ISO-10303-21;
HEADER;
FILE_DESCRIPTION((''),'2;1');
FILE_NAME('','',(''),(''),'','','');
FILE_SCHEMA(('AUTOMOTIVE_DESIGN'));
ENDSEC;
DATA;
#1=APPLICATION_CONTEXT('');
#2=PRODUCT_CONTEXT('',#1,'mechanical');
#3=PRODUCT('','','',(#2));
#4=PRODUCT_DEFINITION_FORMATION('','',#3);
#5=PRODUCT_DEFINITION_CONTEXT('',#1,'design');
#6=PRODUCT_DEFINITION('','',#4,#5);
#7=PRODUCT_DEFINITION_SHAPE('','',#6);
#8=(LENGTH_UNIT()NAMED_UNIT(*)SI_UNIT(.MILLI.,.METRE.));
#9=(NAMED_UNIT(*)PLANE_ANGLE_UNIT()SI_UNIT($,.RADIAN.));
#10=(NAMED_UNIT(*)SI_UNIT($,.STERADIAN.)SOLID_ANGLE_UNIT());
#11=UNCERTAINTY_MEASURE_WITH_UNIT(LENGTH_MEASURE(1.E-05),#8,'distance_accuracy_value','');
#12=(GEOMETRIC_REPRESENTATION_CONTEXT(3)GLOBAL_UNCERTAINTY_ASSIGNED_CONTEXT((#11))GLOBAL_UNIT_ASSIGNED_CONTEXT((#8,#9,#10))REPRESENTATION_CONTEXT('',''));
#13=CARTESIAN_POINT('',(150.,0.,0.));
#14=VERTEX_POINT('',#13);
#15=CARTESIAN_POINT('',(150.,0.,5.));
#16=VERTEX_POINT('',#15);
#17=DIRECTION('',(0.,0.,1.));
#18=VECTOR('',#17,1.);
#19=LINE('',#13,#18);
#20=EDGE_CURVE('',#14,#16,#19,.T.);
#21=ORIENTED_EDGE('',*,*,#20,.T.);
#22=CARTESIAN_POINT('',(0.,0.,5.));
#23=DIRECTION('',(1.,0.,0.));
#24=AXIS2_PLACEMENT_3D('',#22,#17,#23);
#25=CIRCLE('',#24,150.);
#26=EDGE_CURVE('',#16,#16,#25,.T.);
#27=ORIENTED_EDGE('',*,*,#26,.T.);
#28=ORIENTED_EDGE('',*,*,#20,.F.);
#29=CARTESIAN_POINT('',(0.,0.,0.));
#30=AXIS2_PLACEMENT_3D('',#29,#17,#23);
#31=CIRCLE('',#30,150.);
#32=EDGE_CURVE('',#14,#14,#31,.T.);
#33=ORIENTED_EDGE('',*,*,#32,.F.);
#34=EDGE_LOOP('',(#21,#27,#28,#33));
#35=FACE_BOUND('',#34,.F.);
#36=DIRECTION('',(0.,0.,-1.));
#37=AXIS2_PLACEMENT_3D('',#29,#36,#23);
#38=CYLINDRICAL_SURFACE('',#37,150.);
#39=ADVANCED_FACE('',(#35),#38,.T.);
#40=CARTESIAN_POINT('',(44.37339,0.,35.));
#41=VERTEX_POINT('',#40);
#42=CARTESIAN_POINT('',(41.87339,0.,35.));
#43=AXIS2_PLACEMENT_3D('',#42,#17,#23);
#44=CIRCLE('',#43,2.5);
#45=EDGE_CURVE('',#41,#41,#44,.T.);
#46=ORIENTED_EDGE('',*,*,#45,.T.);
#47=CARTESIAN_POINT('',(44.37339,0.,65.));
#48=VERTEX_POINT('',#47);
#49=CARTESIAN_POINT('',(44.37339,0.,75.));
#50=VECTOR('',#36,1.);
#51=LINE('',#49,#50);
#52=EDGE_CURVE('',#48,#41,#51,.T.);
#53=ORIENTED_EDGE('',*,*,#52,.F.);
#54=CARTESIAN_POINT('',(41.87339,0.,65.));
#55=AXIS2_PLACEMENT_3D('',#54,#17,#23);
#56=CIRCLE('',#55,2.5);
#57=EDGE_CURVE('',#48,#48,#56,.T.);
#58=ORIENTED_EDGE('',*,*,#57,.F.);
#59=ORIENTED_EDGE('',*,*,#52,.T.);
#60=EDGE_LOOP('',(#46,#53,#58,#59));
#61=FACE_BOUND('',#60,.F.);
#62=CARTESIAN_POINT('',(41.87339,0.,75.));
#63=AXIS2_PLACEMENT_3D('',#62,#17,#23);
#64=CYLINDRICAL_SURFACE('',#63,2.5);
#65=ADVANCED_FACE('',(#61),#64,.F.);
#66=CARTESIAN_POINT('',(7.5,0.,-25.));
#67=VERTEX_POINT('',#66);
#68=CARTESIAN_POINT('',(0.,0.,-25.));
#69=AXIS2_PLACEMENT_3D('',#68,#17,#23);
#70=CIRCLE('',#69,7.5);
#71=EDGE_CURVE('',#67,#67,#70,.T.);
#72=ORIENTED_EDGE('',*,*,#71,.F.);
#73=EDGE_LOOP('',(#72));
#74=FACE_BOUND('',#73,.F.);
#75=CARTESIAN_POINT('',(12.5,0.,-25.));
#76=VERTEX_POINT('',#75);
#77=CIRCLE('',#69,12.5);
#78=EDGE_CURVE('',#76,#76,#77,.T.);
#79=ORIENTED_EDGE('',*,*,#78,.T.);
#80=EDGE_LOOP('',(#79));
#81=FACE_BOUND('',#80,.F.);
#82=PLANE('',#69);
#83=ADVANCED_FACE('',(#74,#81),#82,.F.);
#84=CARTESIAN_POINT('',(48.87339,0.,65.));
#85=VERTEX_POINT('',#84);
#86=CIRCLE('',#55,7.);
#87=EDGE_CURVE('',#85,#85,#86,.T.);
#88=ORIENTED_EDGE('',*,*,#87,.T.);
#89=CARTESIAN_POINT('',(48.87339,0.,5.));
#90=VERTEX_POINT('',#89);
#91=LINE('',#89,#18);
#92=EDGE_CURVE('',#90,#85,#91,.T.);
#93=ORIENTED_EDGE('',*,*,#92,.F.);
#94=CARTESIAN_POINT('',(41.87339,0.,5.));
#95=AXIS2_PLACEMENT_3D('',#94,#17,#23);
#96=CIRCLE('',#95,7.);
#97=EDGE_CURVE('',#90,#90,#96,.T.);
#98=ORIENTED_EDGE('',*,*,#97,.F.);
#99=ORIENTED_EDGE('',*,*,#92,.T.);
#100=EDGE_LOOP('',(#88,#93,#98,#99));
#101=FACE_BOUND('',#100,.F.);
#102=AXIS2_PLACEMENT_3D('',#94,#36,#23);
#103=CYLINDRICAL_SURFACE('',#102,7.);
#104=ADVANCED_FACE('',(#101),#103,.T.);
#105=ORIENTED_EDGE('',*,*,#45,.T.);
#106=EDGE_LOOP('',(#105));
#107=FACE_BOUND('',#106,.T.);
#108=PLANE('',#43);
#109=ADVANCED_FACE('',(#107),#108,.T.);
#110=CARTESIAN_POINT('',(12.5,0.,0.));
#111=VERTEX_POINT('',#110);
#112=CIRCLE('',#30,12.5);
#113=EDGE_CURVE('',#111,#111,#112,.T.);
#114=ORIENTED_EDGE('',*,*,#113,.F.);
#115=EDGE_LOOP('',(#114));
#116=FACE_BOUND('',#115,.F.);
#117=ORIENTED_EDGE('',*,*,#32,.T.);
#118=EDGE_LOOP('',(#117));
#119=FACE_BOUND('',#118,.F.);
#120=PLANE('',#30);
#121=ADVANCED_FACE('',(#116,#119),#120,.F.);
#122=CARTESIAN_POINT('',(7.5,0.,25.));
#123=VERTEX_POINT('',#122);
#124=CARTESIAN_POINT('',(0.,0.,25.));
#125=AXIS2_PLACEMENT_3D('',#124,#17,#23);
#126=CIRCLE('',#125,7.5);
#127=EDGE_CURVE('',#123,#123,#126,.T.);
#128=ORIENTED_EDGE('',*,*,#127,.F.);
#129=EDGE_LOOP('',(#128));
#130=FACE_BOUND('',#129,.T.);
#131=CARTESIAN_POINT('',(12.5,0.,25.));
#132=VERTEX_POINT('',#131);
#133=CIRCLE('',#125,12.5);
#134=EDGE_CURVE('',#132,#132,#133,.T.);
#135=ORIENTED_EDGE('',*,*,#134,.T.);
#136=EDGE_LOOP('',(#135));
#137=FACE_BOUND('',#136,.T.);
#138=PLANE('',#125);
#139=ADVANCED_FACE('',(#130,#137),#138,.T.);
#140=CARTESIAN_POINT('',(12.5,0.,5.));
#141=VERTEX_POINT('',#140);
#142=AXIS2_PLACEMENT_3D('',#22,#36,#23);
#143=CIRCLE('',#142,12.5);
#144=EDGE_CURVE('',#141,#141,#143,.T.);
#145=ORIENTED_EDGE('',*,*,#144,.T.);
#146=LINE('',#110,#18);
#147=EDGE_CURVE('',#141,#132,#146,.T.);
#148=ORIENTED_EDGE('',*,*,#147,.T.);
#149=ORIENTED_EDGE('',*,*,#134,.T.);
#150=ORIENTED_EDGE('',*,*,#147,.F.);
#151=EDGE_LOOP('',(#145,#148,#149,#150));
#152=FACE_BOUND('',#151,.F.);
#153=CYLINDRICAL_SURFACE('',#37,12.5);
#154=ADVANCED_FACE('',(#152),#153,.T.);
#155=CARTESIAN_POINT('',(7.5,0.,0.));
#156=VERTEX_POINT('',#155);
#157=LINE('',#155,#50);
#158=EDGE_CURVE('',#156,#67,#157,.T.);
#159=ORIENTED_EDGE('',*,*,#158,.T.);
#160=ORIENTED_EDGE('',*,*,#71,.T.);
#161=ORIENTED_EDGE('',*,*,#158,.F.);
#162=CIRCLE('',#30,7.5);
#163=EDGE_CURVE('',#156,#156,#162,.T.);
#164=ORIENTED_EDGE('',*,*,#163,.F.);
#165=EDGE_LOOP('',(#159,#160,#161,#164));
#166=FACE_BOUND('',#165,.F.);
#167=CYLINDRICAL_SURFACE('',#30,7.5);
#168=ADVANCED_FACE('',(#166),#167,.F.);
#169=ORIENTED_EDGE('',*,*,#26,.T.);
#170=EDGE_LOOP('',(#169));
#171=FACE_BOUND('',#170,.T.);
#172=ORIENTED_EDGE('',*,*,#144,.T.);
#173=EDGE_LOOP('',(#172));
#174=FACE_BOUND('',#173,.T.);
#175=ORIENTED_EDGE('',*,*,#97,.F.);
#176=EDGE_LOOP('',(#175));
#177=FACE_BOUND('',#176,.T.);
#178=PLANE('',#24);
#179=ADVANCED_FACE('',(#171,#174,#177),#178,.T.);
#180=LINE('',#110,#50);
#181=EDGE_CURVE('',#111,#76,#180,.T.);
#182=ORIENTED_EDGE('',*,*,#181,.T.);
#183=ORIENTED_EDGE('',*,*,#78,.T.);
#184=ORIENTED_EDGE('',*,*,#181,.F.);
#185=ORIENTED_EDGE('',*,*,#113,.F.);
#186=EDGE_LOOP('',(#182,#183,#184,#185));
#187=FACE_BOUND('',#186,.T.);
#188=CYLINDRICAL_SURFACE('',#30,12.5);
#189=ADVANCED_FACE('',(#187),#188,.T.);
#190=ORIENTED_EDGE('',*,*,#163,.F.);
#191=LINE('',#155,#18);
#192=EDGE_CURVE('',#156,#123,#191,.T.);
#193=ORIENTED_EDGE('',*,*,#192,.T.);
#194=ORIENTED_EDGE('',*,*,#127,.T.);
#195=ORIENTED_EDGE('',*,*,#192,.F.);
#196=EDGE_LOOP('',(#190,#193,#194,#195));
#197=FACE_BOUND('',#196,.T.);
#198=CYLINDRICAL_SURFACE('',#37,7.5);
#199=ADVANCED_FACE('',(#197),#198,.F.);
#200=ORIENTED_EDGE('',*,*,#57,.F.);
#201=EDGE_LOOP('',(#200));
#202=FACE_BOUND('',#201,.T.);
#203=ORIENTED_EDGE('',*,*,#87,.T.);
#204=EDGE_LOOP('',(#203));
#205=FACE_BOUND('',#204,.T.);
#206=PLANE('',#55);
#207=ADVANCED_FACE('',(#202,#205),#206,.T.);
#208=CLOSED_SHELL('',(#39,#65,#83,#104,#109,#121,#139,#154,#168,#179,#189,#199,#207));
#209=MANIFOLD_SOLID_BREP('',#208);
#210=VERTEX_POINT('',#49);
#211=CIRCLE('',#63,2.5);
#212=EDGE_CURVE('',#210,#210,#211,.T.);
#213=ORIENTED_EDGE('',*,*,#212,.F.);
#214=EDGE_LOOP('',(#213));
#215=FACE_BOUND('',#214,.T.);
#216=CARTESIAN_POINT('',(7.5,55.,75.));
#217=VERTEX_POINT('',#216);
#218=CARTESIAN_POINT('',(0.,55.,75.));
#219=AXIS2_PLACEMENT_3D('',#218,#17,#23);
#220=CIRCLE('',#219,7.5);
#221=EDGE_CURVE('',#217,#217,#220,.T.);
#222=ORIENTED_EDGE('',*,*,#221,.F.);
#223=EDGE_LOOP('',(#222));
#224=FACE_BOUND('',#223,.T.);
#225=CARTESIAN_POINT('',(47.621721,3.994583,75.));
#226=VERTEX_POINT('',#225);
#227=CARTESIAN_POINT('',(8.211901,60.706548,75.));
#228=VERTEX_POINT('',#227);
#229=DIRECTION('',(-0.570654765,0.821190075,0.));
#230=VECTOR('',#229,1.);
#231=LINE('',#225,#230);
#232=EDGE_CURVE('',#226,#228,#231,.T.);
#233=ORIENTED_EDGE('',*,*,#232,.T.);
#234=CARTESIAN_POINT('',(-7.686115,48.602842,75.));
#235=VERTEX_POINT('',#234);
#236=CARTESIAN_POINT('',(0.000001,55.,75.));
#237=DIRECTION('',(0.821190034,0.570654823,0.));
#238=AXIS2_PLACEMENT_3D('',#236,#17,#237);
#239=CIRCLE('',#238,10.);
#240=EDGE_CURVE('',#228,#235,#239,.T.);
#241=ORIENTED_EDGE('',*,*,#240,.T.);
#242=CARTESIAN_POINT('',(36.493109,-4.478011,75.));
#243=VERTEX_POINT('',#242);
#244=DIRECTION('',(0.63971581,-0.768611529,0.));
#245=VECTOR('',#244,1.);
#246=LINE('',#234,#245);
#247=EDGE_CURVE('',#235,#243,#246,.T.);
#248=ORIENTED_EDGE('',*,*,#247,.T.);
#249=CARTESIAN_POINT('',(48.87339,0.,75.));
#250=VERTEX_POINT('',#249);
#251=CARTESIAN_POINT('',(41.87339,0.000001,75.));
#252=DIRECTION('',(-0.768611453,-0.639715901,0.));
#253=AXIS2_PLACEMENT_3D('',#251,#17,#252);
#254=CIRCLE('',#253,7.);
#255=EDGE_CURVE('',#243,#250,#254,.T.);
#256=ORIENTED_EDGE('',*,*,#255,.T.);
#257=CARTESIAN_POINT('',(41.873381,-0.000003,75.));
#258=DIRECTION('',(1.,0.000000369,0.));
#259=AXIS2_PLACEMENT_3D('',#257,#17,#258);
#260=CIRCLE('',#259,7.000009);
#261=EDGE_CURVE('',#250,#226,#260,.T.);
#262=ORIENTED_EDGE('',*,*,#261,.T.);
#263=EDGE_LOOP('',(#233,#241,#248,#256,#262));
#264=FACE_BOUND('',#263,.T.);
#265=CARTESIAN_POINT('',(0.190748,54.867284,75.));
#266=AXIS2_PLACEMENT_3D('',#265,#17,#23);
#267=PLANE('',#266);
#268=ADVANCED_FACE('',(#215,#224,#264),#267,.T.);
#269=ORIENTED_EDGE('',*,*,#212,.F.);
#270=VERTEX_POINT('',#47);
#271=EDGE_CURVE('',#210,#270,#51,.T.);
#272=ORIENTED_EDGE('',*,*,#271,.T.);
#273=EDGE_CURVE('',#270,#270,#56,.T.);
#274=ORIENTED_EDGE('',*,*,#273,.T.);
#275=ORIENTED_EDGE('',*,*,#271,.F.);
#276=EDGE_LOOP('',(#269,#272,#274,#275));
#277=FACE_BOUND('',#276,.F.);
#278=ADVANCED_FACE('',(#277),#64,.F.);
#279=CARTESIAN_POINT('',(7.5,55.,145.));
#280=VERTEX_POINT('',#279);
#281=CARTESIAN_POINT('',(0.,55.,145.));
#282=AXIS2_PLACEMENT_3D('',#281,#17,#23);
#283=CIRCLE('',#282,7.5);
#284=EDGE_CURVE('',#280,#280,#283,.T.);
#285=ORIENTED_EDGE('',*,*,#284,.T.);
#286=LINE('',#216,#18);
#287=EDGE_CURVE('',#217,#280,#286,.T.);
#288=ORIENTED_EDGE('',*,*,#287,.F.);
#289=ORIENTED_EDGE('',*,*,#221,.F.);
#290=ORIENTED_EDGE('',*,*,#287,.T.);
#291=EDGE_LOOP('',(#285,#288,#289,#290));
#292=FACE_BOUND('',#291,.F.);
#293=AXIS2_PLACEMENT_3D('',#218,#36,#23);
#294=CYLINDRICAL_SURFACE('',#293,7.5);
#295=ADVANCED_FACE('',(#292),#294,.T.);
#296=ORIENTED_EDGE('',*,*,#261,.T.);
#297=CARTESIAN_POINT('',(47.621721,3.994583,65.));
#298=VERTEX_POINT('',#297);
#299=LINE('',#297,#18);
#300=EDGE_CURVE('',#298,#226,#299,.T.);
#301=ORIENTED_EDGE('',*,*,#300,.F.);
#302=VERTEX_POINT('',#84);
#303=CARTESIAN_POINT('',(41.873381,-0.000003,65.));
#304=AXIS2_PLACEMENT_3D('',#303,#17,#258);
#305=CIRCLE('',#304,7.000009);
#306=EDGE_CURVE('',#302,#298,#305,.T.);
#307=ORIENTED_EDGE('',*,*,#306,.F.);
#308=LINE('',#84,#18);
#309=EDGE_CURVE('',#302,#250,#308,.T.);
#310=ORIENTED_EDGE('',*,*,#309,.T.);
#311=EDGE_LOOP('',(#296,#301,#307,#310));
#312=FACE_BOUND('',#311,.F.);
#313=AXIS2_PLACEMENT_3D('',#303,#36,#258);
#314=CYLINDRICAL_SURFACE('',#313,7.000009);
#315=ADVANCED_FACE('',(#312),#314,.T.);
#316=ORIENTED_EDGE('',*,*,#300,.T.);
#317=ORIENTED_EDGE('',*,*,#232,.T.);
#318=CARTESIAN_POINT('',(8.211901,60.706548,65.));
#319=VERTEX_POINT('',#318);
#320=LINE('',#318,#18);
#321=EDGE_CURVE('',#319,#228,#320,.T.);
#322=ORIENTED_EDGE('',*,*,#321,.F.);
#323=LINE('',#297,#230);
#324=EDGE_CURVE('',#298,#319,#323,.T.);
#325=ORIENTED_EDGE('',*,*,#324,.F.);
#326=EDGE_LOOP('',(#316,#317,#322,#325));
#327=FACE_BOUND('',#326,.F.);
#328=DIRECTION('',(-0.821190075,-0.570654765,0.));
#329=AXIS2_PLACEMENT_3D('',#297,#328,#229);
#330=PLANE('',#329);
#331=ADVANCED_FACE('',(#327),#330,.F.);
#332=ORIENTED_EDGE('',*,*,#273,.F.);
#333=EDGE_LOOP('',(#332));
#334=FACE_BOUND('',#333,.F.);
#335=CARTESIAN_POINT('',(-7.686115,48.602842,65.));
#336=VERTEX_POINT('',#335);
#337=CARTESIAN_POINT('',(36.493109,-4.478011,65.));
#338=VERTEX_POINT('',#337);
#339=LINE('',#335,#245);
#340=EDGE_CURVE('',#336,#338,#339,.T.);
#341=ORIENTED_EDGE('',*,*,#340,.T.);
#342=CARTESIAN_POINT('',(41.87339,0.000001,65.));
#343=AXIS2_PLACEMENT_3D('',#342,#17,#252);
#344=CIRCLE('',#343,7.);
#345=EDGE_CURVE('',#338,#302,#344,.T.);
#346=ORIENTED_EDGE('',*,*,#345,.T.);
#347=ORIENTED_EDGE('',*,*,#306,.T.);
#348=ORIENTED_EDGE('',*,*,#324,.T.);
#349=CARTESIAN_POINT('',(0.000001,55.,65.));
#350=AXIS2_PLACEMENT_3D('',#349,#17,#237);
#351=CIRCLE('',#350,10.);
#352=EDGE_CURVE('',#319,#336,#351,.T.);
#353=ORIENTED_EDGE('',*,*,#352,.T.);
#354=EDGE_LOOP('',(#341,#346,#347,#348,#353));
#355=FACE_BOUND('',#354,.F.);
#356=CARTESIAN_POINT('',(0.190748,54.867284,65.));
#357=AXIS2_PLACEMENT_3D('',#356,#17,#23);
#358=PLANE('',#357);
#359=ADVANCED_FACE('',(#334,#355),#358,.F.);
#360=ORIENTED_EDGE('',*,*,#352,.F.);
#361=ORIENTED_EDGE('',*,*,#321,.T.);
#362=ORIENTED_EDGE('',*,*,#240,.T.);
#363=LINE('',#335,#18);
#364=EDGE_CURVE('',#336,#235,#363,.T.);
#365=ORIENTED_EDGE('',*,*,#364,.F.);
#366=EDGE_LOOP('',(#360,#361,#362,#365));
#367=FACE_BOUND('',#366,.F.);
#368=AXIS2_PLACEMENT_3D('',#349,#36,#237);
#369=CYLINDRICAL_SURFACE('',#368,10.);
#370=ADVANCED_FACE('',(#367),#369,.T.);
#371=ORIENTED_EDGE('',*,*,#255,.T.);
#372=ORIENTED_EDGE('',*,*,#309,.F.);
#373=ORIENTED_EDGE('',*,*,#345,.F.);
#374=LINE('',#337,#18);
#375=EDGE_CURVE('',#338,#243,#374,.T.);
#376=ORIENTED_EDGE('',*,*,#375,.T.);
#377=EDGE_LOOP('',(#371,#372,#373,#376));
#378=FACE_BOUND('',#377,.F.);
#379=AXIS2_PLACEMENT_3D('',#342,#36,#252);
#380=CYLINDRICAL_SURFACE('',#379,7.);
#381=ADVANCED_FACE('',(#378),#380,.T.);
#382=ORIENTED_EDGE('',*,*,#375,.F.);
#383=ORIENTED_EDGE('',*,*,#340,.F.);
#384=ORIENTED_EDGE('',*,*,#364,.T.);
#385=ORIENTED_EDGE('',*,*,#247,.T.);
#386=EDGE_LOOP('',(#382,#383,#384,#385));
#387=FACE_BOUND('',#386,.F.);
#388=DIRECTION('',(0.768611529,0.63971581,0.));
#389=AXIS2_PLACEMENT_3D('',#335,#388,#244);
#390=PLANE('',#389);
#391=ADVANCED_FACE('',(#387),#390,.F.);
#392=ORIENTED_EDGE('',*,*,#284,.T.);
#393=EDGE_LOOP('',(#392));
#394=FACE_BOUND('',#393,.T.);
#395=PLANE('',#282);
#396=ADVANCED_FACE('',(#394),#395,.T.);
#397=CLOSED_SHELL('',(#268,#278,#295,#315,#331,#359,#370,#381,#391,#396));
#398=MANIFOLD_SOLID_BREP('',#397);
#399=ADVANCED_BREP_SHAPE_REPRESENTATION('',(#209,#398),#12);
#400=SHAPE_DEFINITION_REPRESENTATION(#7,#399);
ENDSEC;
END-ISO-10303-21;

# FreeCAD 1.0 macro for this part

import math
import FreeCAD as App
import Part
import Sketcher

V = App.Vector
Q = App.Units.Quantity

doc = App.newDocument("Part")
params = doc.addObject("Spreadsheet::Sheet", "Params")
for row, (alias, value) in enumerate([
    ("sketch1_diameter", "300 mm"),
    ("pad1_length", "5 mm"),
    ("sketch2_diameter", "15 mm"),
    ("sketch3_diameter", "25 mm"),
    ("sketch3_diameter2", "15 mm"),
    ("pad2_length", "25 mm"),
    ("sketch4_diameter", "25 mm"),
    ("sketch4_diameter2", "15 mm"),
    ("pad3_length", "25 mm"),
    ("sketch5_diameter", "14 mm"),
    ("pad4_length", "60 mm"),
    ("sketch6_radius", "10 mm"),
    ("sketch6_radius2", "7 mm"),
    ("pad5_length", "10 mm"),
    ("sketch7_diameter", "15 mm"),
    ("pad6_length", "70 mm"),
    ("sketch8_diameter", "5 mm"),
    ("pad7_length", "40 mm"),
], start=1):
    params.set(f"A{row}", alias)
    params.set(f"B{row}", "=" + value)
    params.setAlias(f"B{row}", alias)

body = doc.addObject("PartDesign::Body", "Body")

sketch1 = body.newObject("Sketcher::SketchObject", "Sketch")
sketch1.AttachmentSupport = (doc.getObject("XY_Plane"), [""])
sketch1.MapMode = "FlatFace"
sketch1.addGeometry(Part.Circle(V(0, 0, 0), V(0, 0, 1), 150), False)
sketch1.addConstraint([
    Sketcher.Constraint("Coincident", 0, 3, -1, 1),
    Sketcher.Constraint("Diameter", 0, Q("300 mm")),
])
sketch1.setExpression("Constraints[1]", "Params.sketch1_diameter")
pad1 = body.newObject("PartDesign::Pad", "Pad")
pad1.Profile = sketch1
pad1.setExpression("Length", "Params.pad1_length")

sketch2 = body.newObject("Sketcher::SketchObject", "Sketch001")
sketch2.AttachmentSupport = (doc.getObject("XY_Plane"), [""])
sketch2.MapMode = "FlatFace"
sketch2.addGeometry(Part.Circle(V(0, 0, 0), V(0, 0, 1), 8), False)
sketch2.addConstraint([
    Sketcher.Constraint("Coincident", 0, 3, -1, 1),
    Sketcher.Constraint("Diameter", 0, Q("15 mm")),
])
sketch2.setExpression("Constraints[1]", "Params.sketch2_diameter")
pocket1 = body.newObject("PartDesign::Pocket", "Pocket")
pocket1.Profile = sketch2
pocket1.Type = "ThroughAll"
pocket1.Reversed = True

sketch3 = body.newObject("Sketcher::SketchObject", "Sketch002")
sketch3.AttachmentSupport = (doc.getObject("XY_Plane"), [""])
sketch3.MapMode = "FlatFace"
sketch3.addGeometry([
    Part.Circle(V(0, 0, 0), V(0, 0, 1), 12),
    Part.Circle(V(0, 0, 0), V(0, 0, 1), 8),
], False)
sketch3.addConstraint([
    Sketcher.Constraint("Coincident", 0, 3, -1, 1),
    Sketcher.Constraint("Coincident", 1, 3, -1, 1),
    Sketcher.Constraint("Diameter", 0, Q("25 mm")),
    Sketcher.Constraint("Diameter", 1, Q("15 mm")),
])
sketch3.setExpression("Constraints[2]", "Params.sketch3_diameter")
sketch3.setExpression("Constraints[3]", "Params.sketch3_diameter2")
pad2 = body.newObject("PartDesign::Pad", "Pad001")
pad2.Profile = sketch3
pad2.setExpression("Length", "Params.pad2_length")

sketch4 = body.newObject("Sketcher::SketchObject", "Sketch003")
sketch4.AttachmentSupport = (doc.getObject("XY_Plane"), [""])
sketch4.MapMode = "FlatFace"
sketch4.addGeometry([
    Part.Circle(V(0, 0, 0), V(0, 0, 1), 12),
    Part.Circle(V(0, 0, 0), V(0, 0, 1), 8),
], False)
sketch4.addConstraint([
    Sketcher.Constraint("Coincident", 0, 3, -1, 1),
    Sketcher.Constraint("Coincident", 1, 3, -1, 1),
    Sketcher.Constraint("Diameter", 0, Q("25 mm")),
    Sketcher.Constraint("Diameter", 1, Q("15 mm")),
])
sketch4.setExpression("Constraints[2]", "Params.sketch4_diameter")
sketch4.setExpression("Constraints[3]", "Params.sketch4_diameter2")
pad3 = body.newObject("PartDesign::Pad", "Pad002")
pad3.Profile = sketch4
pad3.setExpression("Length", "Params.pad3_length")
pad3.Reversed = True

sketch5 = body.newObject("Sketcher::SketchObject", "Sketch004")
sketch5.AttachmentSupport = (doc.getObject("XY_Plane"), [""])
sketch5.MapMode = "FlatFace"
sketch5.AttachmentOffset = App.Placement(V(0, 0, 5), App.Rotation())
sketch5.addGeometry(Part.Circle(V(42, 0, 0), V(0, 0, 1), 7), False)
sketch5.addConstraint([
    Sketcher.Constraint("PointOnObject", 0, 3, -1),
    Sketcher.Constraint("Diameter", 0, Q("14 mm")),
    Sketcher.Constraint("DistanceX", -1, 1, 0, 3, Q("41.87339 mm")),
])
sketch5.setExpression("Constraints[1]", "Params.sketch5_diameter")
pad4 = body.newObject("PartDesign::Pad", "Pad003")
pad4.Profile = sketch5
pad4.setExpression("Length", "Params.pad4_length")
body2 = doc.addObject("PartDesign::Body", "Body001")

sketch6 = body2.newObject("Sketcher::SketchObject", "Sketch005")
sketch6.AttachmentSupport = (doc.getObject("XY_Plane001"), [""])
sketch6.MapMode = "FlatFace"
sketch6.AttachmentOffset = App.Placement(V(0, 0, 65), App.Rotation())
sketch6.addGeometry([
    Part.ArcOfCircle(Part.Circle(V(0, 55, 0), V(0, 0, 1), 10), math.radians(35), math.radians(220)),
    Part.LineSegment(V(-7.7, 48.6, 0), V(36.5, -4.5, 0)),
    Part.ArcOfCircle(Part.Circle(V(41.9, 0, 0), V(0, 0, 1), 7), math.radians(-140), math.radians(0)),
    Part.ArcOfCircle(Part.Circle(V(41.9, 0, 0), V(0, 0, 1), 7), math.radians(0), math.radians(35)),
    Part.LineSegment(V(47.6, 4, 0), V(8.2, 60.7, 0)),
], False)
sketch6.addConstraint([
    Sketcher.Constraint("Tangent", 0, 2, 1, 1),
    Sketcher.Constraint("Tangent", 1, 2, 2, 1),
    Sketcher.Constraint("Tangent", 2, 2, 3, 1),
    Sketcher.Constraint("Tangent", 3, 2, 4, 1),
    Sketcher.Constraint("Tangent", 4, 2, 0, 1),
    Sketcher.Constraint("PointOnObject", 0, 3, -2),
    Sketcher.Constraint("PointOnObject", 2, 3, -1),
    Sketcher.Constraint("PointOnObject", 2, 2, -1),
    Sketcher.Constraint("Equal", 1, 4),
    Sketcher.Constraint("Radius", 0, Q("10 mm")),
    Sketcher.Constraint("Radius", 2, Q("7 mm")),
    Sketcher.Constraint("DistanceY", -1, 1, 0, 3, Q("55 mm")),
    Sketcher.Constraint("DistanceX", -1, 1, 4, 2, Q("8.211901 mm")),
])
sketch6.setExpression("Constraints[9]", "Params.sketch6_radius")
sketch6.setExpression("Constraints[10]", "Params.sketch6_radius2")
pad5 = body2.newObject("PartDesign::Pad", "Pad004")
pad5.Profile = sketch6
pad5.setExpression("Length", "Params.pad5_length")

sketch7 = body2.newObject("Sketcher::SketchObject", "Sketch006")
sketch7.AttachmentSupport = (doc.getObject("XY_Plane001"), [""])
sketch7.MapMode = "FlatFace"
sketch7.AttachmentOffset = App.Placement(V(0, 0, 75), App.Rotation())
sketch7.addGeometry(Part.Circle(V(0, 55, 0), V(0, 0, 1), 8), False)
sketch7.addConstraint([
    Sketcher.Constraint("PointOnObject", 0, 3, -2),
    Sketcher.Constraint("Diameter", 0, Q("15 mm")),
    Sketcher.Constraint("DistanceY", -1, 1, 0, 3, Q("55 mm")),
])
sketch7.setExpression("Constraints[1]", "Params.sketch7_diameter")
pad6 = body2.newObject("PartDesign::Pad", "Pad005")
pad6.Profile = sketch7
pad6.setExpression("Length", "Params.pad6_length")
body3 = doc.addObject("PartDesign::Body", "Body002")

sketch8 = body3.newObject("Sketcher::SketchObject", "Sketch007")
sketch8.AttachmentSupport = (doc.getObject("XY_Plane002"), [""])
sketch8.MapMode = "FlatFace"
sketch8.AttachmentOffset = App.Placement(V(0, 0, 75), App.Rotation())
sketch8.addGeometry(Part.Circle(V(41.9, 0, 0), V(0, 0, 1), 2.5), False)
sketch8.addConstraint([
    Sketcher.Constraint("PointOnObject", 0, 3, -1),
    Sketcher.Constraint("Diameter", 0, Q("5 mm")),
    Sketcher.Constraint("DistanceX", -1, 1, 0, 3, Q("41.87339 mm")),
])
sketch8.setExpression("Constraints[1]", "Params.sketch8_diameter")
pad7 = body3.newObject("PartDesign::Pad", "Pad006")
pad7.Profile = sketch8
pad7.setExpression("Length", "Params.pad7_length")
pad7.Reversed = True
doc.recompute()

body4 = doc.addObject("PartDesign::Body", "Body003")
body4.BaseFeature = body3
boolean = body.newObject("PartDesign::Boolean", "Boolean")
boolean.Type = "Cut"
boolean.addObjects([body4])
doc.recompute()

boolean2 = body2.newObject("PartDesign::Boolean", "Boolean001")
boolean2.Type = "Cut"
boolean2.addObjects([body3])

doc.recompute()
